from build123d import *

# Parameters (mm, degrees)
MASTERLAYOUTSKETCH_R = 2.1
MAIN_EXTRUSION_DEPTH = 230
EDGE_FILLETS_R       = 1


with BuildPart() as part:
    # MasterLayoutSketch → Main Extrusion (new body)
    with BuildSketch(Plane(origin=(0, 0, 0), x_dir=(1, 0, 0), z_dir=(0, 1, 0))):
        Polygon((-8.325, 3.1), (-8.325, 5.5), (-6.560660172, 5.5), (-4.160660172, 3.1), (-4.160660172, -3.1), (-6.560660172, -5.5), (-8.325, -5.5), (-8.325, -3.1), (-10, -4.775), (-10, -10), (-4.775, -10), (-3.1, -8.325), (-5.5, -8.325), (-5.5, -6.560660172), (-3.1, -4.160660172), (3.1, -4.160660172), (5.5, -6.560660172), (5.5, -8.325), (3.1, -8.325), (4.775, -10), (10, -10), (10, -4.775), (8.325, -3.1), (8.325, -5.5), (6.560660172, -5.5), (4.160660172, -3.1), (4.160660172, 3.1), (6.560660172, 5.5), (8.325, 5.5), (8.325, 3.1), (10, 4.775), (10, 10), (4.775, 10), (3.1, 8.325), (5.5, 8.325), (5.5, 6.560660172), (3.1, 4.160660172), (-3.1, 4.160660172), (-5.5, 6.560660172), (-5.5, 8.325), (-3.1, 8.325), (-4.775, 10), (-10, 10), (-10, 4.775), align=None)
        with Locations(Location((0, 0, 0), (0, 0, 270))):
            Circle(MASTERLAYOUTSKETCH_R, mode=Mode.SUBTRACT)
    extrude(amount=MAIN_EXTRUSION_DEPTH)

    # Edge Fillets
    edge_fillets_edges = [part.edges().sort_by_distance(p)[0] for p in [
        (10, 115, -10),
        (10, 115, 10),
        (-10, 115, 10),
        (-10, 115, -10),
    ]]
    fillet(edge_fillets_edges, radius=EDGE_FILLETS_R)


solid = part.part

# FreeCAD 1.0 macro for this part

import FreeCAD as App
import Part
import Sketcher
from FreeCAD import Vector
Q = App.Units.Quantity


def edges_at(feature, points):
    """Names of the edges that pass closest to the given points."""
    edges = feature.Shape.Edges
    near = lambda p: min(range(len(edges)), key=lambda i: edges[i].distToShape(Part.Vertex(*p))[0])
    return sorted({f"Edge{near(p) + 1}" for p in points})

doc = App.newDocument("Part")
body = doc.addObject("PartDesign::Body", "Body")

sketch1 = body.newObject("Sketcher::SketchObject", "Sketch")
sketch1.AttachmentSupport = (doc.getObject("XZ_Plane"), [""])
sketch1.MapMode = "FlatFace"
sketch1.addGeometry(Part.LineSegment(Vector(-8.3, -3.1, 0), Vector(-8.3, -5.5, 0)), False)
sketch1.addGeometry(Part.LineSegment(Vector(-8.3, -5.5, 0), Vector(-6.6, -5.5, 0)), False)
sketch1.addGeometry(Part.LineSegment(Vector(-6.6, -5.5, 0), Vector(-4.2, -3.1, 0)), False)
sketch1.addGeometry(Part.LineSegment(Vector(-4.2, -3.1, 0), Vector(-4.2, 3.1, 0)), False)
sketch1.addGeometry(Part.LineSegment(Vector(-4.2, 3.1, 0), Vector(-6.6, 5.5, 0)), False)
sketch1.addGeometry(Part.LineSegment(Vector(-6.6, 5.5, 0), Vector(-8.3, 5.5, 0)), False)
sketch1.addGeometry(Part.LineSegment(Vector(-8.3, 5.5, 0), Vector(-8.3, 3.1, 0)), False)
sketch1.addGeometry(Part.LineSegment(Vector(-8.3, 3.1, 0), Vector(-10, 4.8, 0)), False)
sketch1.addGeometry(Part.LineSegment(Vector(-10, 4.8, 0), Vector(-10, 10, 0)), False)
sketch1.addGeometry(Part.LineSegment(Vector(-10, 10, 0), Vector(-4.8, 10, 0)), False)
sketch1.addGeometry(Part.LineSegment(Vector(-4.8, 10, 0), Vector(-3.1, 8.3, 0)), False)
sketch1.addGeometry(Part.LineSegment(Vector(-3.1, 8.3, 0), Vector(-5.5, 8.3, 0)), False)
sketch1.addGeometry(Part.LineSegment(Vector(-5.5, 8.3, 0), Vector(-5.5, 6.6, 0)), False)
sketch1.addGeometry(Part.LineSegment(Vector(-5.5, 6.6, 0), Vector(-3.1, 4.2, 0)), False)
sketch1.addGeometry(Part.LineSegment(Vector(-3.1, 4.2, 0), Vector(3.1, 4.2, 0)), False)
sketch1.addGeometry(Part.LineSegment(Vector(3.1, 4.2, 0), Vector(5.5, 6.6, 0)), False)
sketch1.addGeometry(Part.LineSegment(Vector(5.5, 6.6, 0), Vector(5.5, 8.3, 0)), False)
sketch1.addGeometry(Part.LineSegment(Vector(5.5, 8.3, 0), Vector(3.1, 8.3, 0)), False)
sketch1.addGeometry(Part.LineSegment(Vector(3.1, 8.3, 0), Vector(4.8, 10, 0)), False)
sketch1.addGeometry(Part.LineSegment(Vector(4.8, 10, 0), Vector(10, 10, 0)), False)
sketch1.addGeometry(Part.LineSegment(Vector(10, 10, 0), Vector(10, 4.8, 0)), False)
sketch1.addGeometry(Part.LineSegment(Vector(10, 4.8, 0), Vector(8.3, 3.1, 0)), False)
sketch1.addGeometry(Part.LineSegment(Vector(8.3, 3.1, 0), Vector(8.3, 5.5, 0)), False)
sketch1.addGeometry(Part.LineSegment(Vector(8.3, 5.5, 0), Vector(6.6, 5.5, 0)), False)
sketch1.addGeometry(Part.LineSegment(Vector(6.6, 5.5, 0), Vector(4.2, 3.1, 0)), False)
sketch1.addGeometry(Part.LineSegment(Vector(4.2, 3.1, 0), Vector(4.2, -3.1, 0)), False)
sketch1.addGeometry(Part.LineSegment(Vector(4.2, -3.1, 0), Vector(6.6, -5.5, 0)), False)
sketch1.addGeometry(Part.LineSegment(Vector(6.6, -5.5, 0), Vector(8.3, -5.5, 0)), False)
sketch1.addGeometry(Part.LineSegment(Vector(8.3, -5.5, 0), Vector(8.3, -3.1, 0)), False)
sketch1.addGeometry(Part.LineSegment(Vector(8.3, -3.1, 0), Vector(10, -4.8, 0)), False)
sketch1.addGeometry(Part.LineSegment(Vector(10, -4.8, 0), Vector(10, -10, 0)), False)
sketch1.addGeometry(Part.LineSegment(Vector(10, -10, 0), Vector(4.8, -10, 0)), False)
sketch1.addGeometry(Part.LineSegment(Vector(4.8, -10, 0), Vector(3.1, -8.3, 0)), False)
sketch1.addGeometry(Part.LineSegment(Vector(3.1, -8.3, 0), Vector(5.5, -8.3, 0)), False)
sketch1.addGeometry(Part.LineSegment(Vector(5.5, -8.3, 0), Vector(5.5, -6.6, 0)), False)
sketch1.addGeometry(Part.LineSegment(Vector(5.5, -6.6, 0), Vector(3.1, -4.2, 0)), False)
sketch1.addGeometry(Part.LineSegment(Vector(3.1, -4.2, 0), Vector(-3.1, -4.2, 0)), False)
sketch1.addGeometry(Part.LineSegment(Vector(-3.1, -4.2, 0), Vector(-5.5, -6.6, 0)), False)
sketch1.addGeometry(Part.LineSegment(Vector(-5.5, -6.6, 0), Vector(-5.5, -8.3, 0)), False)
sketch1.addGeometry(Part.LineSegment(Vector(-5.5, -8.3, 0), Vector(-3.1, -8.3, 0)), False)
sketch1.addGeometry(Part.LineSegment(Vector(-3.1, -8.3, 0), Vector(-4.8, -10, 0)), False)
sketch1.addGeometry(Part.LineSegment(Vector(-4.8, -10, 0), Vector(-10, -10, 0)), False)
sketch1.addGeometry(Part.LineSegment(Vector(-10, -10, 0), Vector(-10, -4.8, 0)), False)
sketch1.addGeometry(Part.LineSegment(Vector(-10, -4.8, 0), Vector(-8.3, -3.1, 0)), False)
sketch1.addGeometry(Part.Circle(Vector(0, 0, 0), Vector(0, 0, 1), 2.1), False)
sketch1.addConstraint(Sketcher.Constraint("Coincident", 0, 2, 1, 1))
sketch1.addConstraint(Sketcher.Constraint("Coincident", 1, 2, 2, 1))
sketch1.addConstraint(Sketcher.Constraint("Coincident", 2, 2, 3, 1))
sketch1.addConstraint(Sketcher.Constraint("Coincident", 3, 2, 4, 1))
sketch1.addConstraint(Sketcher.Constraint("Coincident", 4, 2, 5, 1))
sketch1.addConstraint(Sketcher.Constraint("Coincident", 5, 2, 6, 1))
sketch1.addConstraint(Sketcher.Constraint("Coincident", 6, 2, 7, 1))
sketch1.addConstraint(Sketcher.Constraint("Coincident", 7, 2, 8, 1))
sketch1.addConstraint(Sketcher.Constraint("Coincident", 8, 2, 9, 1))
sketch1.addConstraint(Sketcher.Constraint("Coincident", 9, 2, 10, 1))
sketch1.addConstraint(Sketcher.Constraint("Coincident", 10, 2, 11, 1))
sketch1.addConstraint(Sketcher.Constraint("Coincident", 11, 2, 12, 1))
sketch1.addConstraint(Sketcher.Constraint("Coincident", 12, 2, 13, 1))
sketch1.addConstraint(Sketcher.Constraint("Coincident", 13, 2, 14, 1))
sketch1.addConstraint(Sketcher.Constraint("Coincident", 14, 2, 15, 1))
sketch1.addConstraint(Sketcher.Constraint("Coincident", 15, 2, 16, 1))
sketch1.addConstraint(Sketcher.Constraint("Coincident", 16, 2, 17, 1))
sketch1.addConstraint(Sketcher.Constraint("Coincident", 17, 2, 18, 1))
sketch1.addConstraint(Sketcher.Constraint("Coincident", 18, 2, 19, 1))
sketch1.addConstraint(Sketcher.Constraint("Coincident", 19, 2, 20, 1))
sketch1.addConstraint(Sketcher.Constraint("Coincident", 20, 2, 21, 1))
sketch1.addConstraint(Sketcher.Constraint("Coincident", 21, 2, 22, 1))
sketch1.addConstraint(Sketcher.Constraint("Coincident", 22, 2, 23, 1))
sketch1.addConstraint(Sketcher.Constraint("Coincident", 23, 2, 24, 1))
sketch1.addConstraint(Sketcher.Constraint("Coincident", 24, 2, 25, 1))
sketch1.addConstraint(Sketcher.Constraint("Coincident", 25, 2, 26, 1))
sketch1.addConstraint(Sketcher.Constraint("Coincident", 26, 2, 27, 1))
sketch1.addConstraint(Sketcher.Constraint("Coincident", 27, 2, 28, 1))
sketch1.addConstraint(Sketcher.Constraint("Coincident", 28, 2, 29, 1))
sketch1.addConstraint(Sketcher.Constraint("Coincident", 29, 2, 30, 1))
sketch1.addConstraint(Sketcher.Constraint("Coincident", 30, 2, 31, 1))
sketch1.addConstraint(Sketcher.Constraint("Coincident", 31, 2, 32, 1))
sketch1.addConstraint(Sketcher.Constraint("Coincident", 32, 2, 33, 1))
sketch1.addConstraint(Sketcher.Constraint("Coincident", 33, 2, 34, 1))
sketch1.addConstraint(Sketcher.Constraint("Coincident", 34, 2, 35, 1))
sketch1.addConstraint(Sketcher.Constraint("Coincident", 35, 2, 36, 1))
sketch1.addConstraint(Sketcher.Constraint("Coincident", 36, 2, 37, 1))
sketch1.addConstraint(Sketcher.Constraint("Coincident", 37, 2, 38, 1))
sketch1.addConstraint(Sketcher.Constraint("Coincident", 38, 2, 39, 1))
sketch1.addConstraint(Sketcher.Constraint("Coincident", 39, 2, 40, 1))
sketch1.addConstraint(Sketcher.Constraint("Coincident", 40, 2, 41, 1))
sketch1.addConstraint(Sketcher.Constraint("Coincident", 41, 2, 42, 1))
sketch1.addConstraint(Sketcher.Constraint("Coincident", 42, 2, 43, 1))
sketch1.addConstraint(Sketcher.Constraint("Coincident", 43, 2, 0, 1))
sketch1.addConstraint(Sketcher.Constraint("Vertical", 0))
sketch1.addConstraint(Sketcher.Constraint("Horizontal", 1))
sketch1.addConstraint(Sketcher.Constraint("Vertical", 3))
sketch1.addConstraint(Sketcher.Constraint("Horizontal", 5))
sketch1.addConstraint(Sketcher.Constraint("Vertical", 6))
sketch1.addConstraint(Sketcher.Constraint("Vertical", 8))
sketch1.addConstraint(Sketcher.Constraint("Horizontal", 9))
sketch1.addConstraint(Sketcher.Constraint("Horizontal", 11))
sketch1.addConstraint(Sketcher.Constraint("Vertical", 12))
sketch1.addConstraint(Sketcher.Constraint("Horizontal", 14))
sketch1.addConstraint(Sketcher.Constraint("Vertical", 16))
sketch1.addConstraint(Sketcher.Constraint("Horizontal", 17))
sketch1.addConstraint(Sketcher.Constraint("Horizontal", 19))
sketch1.addConstraint(Sketcher.Constraint("Vertical", 20))
sketch1.addConstraint(Sketcher.Constraint("Vertical", 22))
sketch1.addConstraint(Sketcher.Constraint("Horizontal", 23))
sketch1.addConstraint(Sketcher.Constraint("Vertical", 25))
sketch1.addConstraint(Sketcher.Constraint("Horizontal", 27))
sketch1.addConstraint(Sketcher.Constraint("Vertical", 28))
sketch1.addConstraint(Sketcher.Constraint("Vertical", 30))
sketch1.addConstraint(Sketcher.Constraint("Horizontal", 31))
sketch1.addConstraint(Sketcher.Constraint("Horizontal", 33))
sketch1.addConstraint(Sketcher.Constraint("Vertical", 34))
sketch1.addConstraint(Sketcher.Constraint("Horizontal", 36))
sketch1.addConstraint(Sketcher.Constraint("Vertical", 38))
sketch1.addConstraint(Sketcher.Constraint("Horizontal", 39))
sketch1.addConstraint(Sketcher.Constraint("Horizontal", 41))
sketch1.addConstraint(Sketcher.Constraint("Vertical", 42))
sketch1.addConstraint(Sketcher.Constraint("Coincident", 44, 3, -1, 1))
sketch1.addConstraint(Sketcher.Constraint("Symmetric", 0, 2, 22, 2, -1, 1))
sketch1.addConstraint(Sketcher.Constraint("Symmetric", 2, 2, 24, 2, -1, 1))
sketch1.addConstraint(Sketcher.Constraint("Symmetric", 4, 2, 26, 2, -1, 1))
sketch1.addConstraint(Sketcher.Constraint("Symmetric", 6, 2, 28, 2, -1, 1))
sketch1.addConstraint(Sketcher.Constraint("Symmetric", 7, 2, 29, 2, -1, 1))
sketch1.addConstraint(Sketcher.Constraint("Symmetric", 9, 2, 31, 2, -1, 1))
sketch1.addConstraint(Sketcher.Constraint("Symmetric", 10, 2, 32, 2, -1, 1))
sketch1.addConstraint(Sketcher.Constraint("Symmetric", 12, 2, 34, 2, -1, 1))
sketch1.addConstraint(Sketcher.Constraint("Symmetric", 13, 2, 35, 2, -1, 1))
sketch1.addConstraint(Sketcher.Constraint("Symmetric", 15, 2, 37, 2, -1, 1))
sketch1.addConstraint(Sketcher.Constraint("Symmetric", 17, 2, 39, 2, -1, 1))
sketch1.addConstraint(Sketcher.Constraint("Symmetric", 18, 2, 40, 2, -1, 1))
sketch1.addConstraint(Sketcher.Constraint("Symmetric", 20, 2, 42, 2, -1, 1))
sketch1.addConstraint(Sketcher.Constraint("Symmetric", 12, 2, 15, 2, -2))
sketch1.addConstraint(Sketcher.Constraint("Symmetric", 10, 2, 17, 2, -2))
sketch1.addConstraint(Sketcher.Constraint("Symmetric", 9, 2, 18, 2, -2))
sketch1.addConstraint(Sketcher.Constraint("Symmetric", 7, 2, 20, 2, -2))
sketch1.addConstraint(Sketcher.Constraint("Symmetric", 6, 2, 21, 2, -2))
sketch1.addConstraint(Sketcher.Constraint("Symmetric", 4, 2, 23, 2, -2))
sketch1.addConstraint(Sketcher.Constraint("Perpendicular", 2, 4))
sketch1.addConstraint(Sketcher.Constraint("Parallel", 4, 7))
sketch1.addConstraint(Sketcher.Constraint("Parallel", 7, 10))
sketch1.addConstraint(Sketcher.Constraint("Parallel", 10, 13))
sketch1.addConstraint(Sketcher.Constraint("Perpendicular", 13, 15))
sketch1.addConstraint(Sketcher.Constraint("Parallel", 15, 18))
sketch1.addConstraint(Sketcher.Constraint("Parallel", 21, 24))
sketch1.addConstraint(Sketcher.Constraint("Perpendicular", 24, 26))
sketch1.addConstraint(Sketcher.Constraint("Perpendicular", 35, 37))
sketch1.addConstraint(Sketcher.Constraint("Parallel", 40, 43))
sketch1.addConstraint(Sketcher.Constraint("Horizontal", 3, 2, 6, 2))
sketch1.addConstraint(Sketcher.Constraint("Vertical", 10, 2, 13, 2))
sketch1.addConstraint(Sketcher.Constraint("Equal", 39, 0))
sketch1.addConstraint(Sketcher.Constraint("Equal", 36, 3))
sketch1.addConstraint(Sketcher.Constraint("Equal", 41, 8))
sketch1.addConstraint(Sketcher.Constraint("Equal", 27, 12))
sketch1.addConstraint(Sketcher.Constraint("Equal", 7, 10))
sketch1.addConstraint(Sketcher.Constraint("Diameter", 44, Q("4.2 mm")))
sketch1.addConstraint(Sketcher.Constraint("DistanceX", 11, 2, 11, 1, Q("2.4 mm")))
sketch1.addConstraint(Sketcher.Constraint("DistanceX", 14, 1, 14, 2, Q("6.2 mm")))
sketch1.addConstraint(Sketcher.Constraint("DistanceX", 7, 2, -1, 1, Q("10 mm")))
sketch1.addConstraint(Sketcher.Constraint("DistanceX", 9, 1, 9, 2, Q("5.225 mm")))
sketch1.addConstraint(Sketcher.Constraint("DistanceX", 1, 1, 1, 2, Q("1.76434 mm")))
pad1 = body.newObject("PartDesign::Pad", "Pad")
pad1.Profile = sketch1
pad1.Length = 230
pad1.Reversed = True
doc.recompute()

fillet = body.newObject("PartDesign::Fillet", "Fillet")
fillet.Base = (pad1, edges_at(pad1, [
    (10, 115, -10),
    (10, 115, 10),
    (-10, 115, 10),
    (-10, 115, -10),
]))
fillet.Radius = 1

doc.recompute()
